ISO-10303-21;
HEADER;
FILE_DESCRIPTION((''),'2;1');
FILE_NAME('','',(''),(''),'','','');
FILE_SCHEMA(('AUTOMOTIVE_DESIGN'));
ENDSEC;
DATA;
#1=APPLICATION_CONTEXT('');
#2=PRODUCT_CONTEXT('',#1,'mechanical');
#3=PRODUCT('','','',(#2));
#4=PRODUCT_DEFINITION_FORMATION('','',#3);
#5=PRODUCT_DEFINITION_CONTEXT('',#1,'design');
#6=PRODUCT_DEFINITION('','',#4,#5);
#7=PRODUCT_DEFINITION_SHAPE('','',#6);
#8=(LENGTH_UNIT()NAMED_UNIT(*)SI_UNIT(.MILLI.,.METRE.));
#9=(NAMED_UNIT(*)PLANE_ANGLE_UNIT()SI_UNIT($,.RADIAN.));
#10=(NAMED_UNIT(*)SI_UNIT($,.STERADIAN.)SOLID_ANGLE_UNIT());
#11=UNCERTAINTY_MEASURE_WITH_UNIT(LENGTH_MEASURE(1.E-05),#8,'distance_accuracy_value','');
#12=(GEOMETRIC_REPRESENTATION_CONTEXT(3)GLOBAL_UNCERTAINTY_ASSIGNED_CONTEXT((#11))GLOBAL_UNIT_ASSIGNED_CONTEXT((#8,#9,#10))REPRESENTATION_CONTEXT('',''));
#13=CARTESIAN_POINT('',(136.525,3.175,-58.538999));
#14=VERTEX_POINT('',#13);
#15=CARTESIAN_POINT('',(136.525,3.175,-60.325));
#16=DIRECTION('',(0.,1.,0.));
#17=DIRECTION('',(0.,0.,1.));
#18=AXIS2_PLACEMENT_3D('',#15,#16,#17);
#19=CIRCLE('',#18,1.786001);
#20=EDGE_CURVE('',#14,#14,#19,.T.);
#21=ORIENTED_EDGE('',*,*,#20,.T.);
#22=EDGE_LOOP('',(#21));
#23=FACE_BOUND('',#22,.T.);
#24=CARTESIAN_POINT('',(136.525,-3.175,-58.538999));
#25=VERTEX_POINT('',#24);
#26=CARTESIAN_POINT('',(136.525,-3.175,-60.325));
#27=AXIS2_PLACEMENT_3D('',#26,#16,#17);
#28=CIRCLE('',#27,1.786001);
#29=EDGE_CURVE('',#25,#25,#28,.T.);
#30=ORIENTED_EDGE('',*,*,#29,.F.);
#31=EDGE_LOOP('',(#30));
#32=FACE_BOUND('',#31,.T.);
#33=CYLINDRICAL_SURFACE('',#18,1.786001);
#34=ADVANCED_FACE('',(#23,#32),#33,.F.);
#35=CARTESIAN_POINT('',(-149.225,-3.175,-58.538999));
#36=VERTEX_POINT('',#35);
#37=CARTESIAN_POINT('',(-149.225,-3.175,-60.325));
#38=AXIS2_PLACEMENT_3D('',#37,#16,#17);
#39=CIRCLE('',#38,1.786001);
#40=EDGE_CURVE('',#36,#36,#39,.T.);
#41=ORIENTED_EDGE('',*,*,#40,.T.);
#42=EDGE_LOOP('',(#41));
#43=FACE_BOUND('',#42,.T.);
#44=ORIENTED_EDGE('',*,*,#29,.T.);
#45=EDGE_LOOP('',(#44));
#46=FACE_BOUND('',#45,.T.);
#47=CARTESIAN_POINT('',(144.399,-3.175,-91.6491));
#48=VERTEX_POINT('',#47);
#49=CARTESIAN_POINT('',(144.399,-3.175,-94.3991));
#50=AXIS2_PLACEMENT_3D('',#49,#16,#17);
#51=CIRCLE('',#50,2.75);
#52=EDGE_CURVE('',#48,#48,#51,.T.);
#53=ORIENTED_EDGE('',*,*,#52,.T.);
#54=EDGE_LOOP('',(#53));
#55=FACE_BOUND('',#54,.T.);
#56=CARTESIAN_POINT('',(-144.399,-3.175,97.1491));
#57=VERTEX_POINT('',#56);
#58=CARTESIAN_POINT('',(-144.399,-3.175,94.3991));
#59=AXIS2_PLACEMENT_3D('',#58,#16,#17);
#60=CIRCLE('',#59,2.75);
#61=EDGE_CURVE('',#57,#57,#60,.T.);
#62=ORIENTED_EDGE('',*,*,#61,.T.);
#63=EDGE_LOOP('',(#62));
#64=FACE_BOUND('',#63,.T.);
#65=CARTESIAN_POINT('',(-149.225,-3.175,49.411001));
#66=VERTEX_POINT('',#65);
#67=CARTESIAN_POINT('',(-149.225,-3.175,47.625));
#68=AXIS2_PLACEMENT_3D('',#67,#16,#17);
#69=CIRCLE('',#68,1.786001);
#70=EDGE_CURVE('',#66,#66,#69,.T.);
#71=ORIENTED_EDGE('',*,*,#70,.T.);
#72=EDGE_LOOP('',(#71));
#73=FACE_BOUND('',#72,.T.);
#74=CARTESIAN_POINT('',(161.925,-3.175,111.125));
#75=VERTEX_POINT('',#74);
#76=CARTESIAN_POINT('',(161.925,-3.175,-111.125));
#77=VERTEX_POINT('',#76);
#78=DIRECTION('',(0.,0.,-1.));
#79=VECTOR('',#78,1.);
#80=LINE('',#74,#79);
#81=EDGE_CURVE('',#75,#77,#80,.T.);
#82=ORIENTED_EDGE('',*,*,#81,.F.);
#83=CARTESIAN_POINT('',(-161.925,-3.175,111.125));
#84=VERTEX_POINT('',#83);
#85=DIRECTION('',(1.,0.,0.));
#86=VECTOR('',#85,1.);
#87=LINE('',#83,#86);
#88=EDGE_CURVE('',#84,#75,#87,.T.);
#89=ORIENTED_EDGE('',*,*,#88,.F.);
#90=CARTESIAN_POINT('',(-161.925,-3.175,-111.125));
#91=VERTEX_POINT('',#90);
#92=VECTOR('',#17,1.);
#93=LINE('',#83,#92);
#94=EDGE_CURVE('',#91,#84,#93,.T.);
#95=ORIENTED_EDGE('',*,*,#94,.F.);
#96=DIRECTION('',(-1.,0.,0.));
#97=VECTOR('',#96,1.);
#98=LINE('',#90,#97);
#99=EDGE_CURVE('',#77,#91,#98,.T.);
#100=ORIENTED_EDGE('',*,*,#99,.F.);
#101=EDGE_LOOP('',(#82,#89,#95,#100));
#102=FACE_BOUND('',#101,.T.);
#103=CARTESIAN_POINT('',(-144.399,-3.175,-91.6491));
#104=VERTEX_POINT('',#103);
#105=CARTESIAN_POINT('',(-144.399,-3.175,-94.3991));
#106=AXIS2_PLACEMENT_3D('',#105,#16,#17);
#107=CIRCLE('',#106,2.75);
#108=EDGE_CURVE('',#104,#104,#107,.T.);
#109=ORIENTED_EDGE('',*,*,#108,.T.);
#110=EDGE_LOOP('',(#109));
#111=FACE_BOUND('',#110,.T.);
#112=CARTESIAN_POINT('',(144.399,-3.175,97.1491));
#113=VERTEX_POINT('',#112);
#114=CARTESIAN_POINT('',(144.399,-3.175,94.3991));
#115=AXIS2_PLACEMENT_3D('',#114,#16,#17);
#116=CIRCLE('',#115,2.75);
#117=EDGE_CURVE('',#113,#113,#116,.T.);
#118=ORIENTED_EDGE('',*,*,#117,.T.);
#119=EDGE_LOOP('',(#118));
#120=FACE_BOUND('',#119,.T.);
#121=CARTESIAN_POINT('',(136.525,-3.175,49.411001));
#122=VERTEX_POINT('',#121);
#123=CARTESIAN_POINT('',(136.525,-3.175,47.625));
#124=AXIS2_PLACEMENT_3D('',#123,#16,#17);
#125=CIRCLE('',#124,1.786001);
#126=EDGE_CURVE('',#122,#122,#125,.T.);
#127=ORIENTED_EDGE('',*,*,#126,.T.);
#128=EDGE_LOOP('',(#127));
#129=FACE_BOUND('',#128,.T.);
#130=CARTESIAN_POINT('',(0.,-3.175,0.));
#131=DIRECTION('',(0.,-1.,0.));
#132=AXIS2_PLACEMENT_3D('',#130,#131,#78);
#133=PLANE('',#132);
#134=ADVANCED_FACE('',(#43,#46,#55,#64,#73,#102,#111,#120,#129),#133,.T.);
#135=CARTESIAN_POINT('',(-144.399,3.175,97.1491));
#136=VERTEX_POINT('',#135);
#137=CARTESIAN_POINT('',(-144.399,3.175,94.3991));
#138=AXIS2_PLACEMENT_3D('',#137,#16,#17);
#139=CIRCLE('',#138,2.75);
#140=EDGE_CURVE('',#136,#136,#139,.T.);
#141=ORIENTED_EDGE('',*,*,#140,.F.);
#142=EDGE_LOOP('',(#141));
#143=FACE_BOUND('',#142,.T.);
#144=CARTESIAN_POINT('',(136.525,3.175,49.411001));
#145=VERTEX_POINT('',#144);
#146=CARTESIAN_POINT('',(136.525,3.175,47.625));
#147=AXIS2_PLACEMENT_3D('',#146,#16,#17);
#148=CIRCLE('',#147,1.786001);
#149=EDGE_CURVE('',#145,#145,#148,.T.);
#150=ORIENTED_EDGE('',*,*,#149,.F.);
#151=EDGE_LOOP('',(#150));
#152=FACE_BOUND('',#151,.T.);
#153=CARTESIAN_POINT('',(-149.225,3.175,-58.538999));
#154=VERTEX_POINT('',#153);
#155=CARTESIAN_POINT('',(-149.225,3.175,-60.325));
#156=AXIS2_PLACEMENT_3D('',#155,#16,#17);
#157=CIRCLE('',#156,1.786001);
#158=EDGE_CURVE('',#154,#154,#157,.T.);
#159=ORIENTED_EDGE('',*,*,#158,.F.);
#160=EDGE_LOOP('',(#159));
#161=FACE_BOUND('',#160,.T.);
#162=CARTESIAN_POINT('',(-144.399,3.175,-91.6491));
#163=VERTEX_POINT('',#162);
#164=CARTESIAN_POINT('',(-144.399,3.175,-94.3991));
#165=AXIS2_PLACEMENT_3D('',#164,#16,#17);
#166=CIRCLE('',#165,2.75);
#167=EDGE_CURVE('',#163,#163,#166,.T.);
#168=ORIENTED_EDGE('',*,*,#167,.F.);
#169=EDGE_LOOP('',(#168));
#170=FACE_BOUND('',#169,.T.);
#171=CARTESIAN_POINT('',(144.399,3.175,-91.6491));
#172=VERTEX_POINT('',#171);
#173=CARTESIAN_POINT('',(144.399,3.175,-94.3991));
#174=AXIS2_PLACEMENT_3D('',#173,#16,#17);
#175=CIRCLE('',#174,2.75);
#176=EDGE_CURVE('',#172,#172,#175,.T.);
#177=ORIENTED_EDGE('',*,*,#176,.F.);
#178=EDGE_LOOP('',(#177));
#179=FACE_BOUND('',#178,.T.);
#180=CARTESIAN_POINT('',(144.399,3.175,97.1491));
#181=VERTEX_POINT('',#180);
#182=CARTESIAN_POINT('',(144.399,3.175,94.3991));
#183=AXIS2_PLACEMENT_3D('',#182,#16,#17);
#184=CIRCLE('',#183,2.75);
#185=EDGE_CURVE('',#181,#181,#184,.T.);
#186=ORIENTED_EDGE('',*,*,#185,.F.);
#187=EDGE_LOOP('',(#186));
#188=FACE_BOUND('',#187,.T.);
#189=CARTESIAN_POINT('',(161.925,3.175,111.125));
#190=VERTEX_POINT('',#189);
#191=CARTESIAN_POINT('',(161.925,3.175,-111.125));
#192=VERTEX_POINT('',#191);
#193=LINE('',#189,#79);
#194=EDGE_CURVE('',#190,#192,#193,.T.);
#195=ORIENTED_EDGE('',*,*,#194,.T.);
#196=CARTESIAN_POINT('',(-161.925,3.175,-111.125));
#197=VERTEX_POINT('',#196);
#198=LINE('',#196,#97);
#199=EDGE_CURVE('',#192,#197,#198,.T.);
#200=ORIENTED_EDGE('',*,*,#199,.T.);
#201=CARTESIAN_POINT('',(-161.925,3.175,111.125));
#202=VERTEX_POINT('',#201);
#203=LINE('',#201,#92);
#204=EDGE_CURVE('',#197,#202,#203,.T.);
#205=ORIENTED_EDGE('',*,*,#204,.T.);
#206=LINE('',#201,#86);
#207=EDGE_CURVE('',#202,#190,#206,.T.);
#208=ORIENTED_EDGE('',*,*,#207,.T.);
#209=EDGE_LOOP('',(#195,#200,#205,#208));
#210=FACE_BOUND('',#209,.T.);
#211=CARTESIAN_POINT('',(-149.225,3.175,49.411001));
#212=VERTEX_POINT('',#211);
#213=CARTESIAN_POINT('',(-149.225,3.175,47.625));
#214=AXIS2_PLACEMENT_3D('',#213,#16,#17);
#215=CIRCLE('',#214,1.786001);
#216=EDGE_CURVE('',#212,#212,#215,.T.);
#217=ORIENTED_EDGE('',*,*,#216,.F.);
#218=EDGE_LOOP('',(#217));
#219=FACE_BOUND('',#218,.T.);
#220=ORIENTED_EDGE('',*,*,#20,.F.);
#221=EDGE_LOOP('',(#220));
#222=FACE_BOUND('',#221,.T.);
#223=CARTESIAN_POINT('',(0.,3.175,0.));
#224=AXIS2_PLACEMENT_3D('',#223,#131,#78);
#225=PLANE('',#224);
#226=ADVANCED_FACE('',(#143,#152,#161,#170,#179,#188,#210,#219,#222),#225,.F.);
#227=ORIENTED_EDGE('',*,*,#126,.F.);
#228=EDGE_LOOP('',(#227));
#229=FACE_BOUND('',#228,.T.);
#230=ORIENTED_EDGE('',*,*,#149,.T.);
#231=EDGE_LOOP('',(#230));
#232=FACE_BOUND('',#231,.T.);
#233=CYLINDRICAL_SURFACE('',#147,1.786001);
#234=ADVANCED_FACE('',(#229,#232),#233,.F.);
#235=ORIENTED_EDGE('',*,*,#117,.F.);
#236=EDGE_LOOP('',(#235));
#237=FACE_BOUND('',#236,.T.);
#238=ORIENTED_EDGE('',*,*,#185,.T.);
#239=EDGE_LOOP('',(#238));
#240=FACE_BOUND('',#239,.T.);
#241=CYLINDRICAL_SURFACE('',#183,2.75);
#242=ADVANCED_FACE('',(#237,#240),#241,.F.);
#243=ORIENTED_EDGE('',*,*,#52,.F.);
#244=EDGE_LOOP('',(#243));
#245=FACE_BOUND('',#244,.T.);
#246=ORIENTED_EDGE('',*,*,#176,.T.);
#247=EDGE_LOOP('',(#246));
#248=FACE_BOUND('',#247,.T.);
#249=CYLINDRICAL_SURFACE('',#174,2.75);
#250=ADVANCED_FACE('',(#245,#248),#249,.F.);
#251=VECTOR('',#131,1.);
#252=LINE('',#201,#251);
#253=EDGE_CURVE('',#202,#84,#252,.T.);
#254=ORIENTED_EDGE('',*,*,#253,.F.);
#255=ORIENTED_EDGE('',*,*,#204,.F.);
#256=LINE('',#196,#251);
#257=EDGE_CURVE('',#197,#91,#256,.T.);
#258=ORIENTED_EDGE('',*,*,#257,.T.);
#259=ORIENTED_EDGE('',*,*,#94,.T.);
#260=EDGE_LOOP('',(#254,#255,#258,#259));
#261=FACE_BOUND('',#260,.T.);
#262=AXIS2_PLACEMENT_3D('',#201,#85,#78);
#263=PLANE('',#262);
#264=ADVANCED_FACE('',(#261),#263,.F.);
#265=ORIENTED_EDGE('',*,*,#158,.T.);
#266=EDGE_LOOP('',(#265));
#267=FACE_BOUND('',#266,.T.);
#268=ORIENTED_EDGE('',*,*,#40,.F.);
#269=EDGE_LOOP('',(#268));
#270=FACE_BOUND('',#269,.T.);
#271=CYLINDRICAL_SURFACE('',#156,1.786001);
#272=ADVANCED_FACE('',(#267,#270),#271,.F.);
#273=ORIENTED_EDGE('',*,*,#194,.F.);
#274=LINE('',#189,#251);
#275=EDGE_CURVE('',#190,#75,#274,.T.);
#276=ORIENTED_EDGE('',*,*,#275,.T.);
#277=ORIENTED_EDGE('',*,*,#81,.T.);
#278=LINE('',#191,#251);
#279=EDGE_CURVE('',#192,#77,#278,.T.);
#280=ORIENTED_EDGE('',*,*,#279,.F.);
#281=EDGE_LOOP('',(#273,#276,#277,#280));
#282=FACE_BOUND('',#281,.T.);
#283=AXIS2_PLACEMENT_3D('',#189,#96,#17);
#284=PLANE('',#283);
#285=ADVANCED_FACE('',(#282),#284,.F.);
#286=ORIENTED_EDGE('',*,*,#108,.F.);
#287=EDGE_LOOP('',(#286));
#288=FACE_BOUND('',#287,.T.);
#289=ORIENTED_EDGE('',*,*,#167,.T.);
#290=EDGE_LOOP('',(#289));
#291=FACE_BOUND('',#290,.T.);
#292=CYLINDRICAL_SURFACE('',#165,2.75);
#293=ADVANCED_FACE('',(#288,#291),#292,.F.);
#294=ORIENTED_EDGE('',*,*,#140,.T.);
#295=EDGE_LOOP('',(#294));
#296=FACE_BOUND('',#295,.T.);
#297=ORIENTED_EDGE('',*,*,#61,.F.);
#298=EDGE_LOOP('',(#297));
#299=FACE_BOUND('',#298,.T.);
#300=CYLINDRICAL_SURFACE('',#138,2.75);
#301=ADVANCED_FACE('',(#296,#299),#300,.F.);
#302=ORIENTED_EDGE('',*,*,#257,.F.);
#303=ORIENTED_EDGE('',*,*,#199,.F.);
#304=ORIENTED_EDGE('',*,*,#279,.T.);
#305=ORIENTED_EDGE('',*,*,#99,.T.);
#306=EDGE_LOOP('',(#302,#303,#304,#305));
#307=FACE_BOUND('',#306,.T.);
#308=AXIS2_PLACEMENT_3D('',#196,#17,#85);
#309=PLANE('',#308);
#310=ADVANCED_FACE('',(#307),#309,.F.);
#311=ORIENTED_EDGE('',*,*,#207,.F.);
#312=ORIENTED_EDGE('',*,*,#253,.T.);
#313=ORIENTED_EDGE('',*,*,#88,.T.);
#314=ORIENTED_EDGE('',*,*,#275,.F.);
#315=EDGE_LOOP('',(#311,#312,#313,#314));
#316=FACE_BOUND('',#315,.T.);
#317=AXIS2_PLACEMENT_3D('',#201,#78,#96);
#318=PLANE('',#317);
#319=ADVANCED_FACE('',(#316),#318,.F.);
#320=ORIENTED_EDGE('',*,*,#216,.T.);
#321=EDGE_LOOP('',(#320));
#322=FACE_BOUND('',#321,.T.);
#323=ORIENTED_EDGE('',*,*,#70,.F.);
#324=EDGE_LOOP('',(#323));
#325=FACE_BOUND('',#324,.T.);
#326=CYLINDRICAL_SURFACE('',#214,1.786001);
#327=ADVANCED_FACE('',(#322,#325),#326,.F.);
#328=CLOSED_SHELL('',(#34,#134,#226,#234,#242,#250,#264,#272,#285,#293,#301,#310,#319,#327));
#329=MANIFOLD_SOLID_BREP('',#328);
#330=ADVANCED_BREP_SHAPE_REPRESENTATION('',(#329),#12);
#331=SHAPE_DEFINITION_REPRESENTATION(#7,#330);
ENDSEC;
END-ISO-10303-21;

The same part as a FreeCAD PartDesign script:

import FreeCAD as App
import Part
import Sketcher
Q = App.Units.Quantity

doc = App.newDocument("Part")
body = doc.addObject("PartDesign::Body", "Body")

sketch1 = doc.addObject("Sketcher::SketchObject", "Sketch")
body.addObject(sketch1)
sketch1.AttachmentSupport = (doc.XZ_Plane, [""])
sketch1.MapMode = "FlatFace"
sketch1.addGeometry([
    Part.LineSegment(App.Vector(-161.925, -111.125, 0), App.Vector(-161.925, 111.125, 0)),
    Part.LineSegment(App.Vector(-161.925, 111.125, 0), App.Vector(161.925, 111.125, 0)),
    Part.LineSegment(App.Vector(161.925, 111.125, 0), App.Vector(161.925, -111.125, 0)),
    Part.LineSegment(App.Vector(161.925, -111.125, 0), App.Vector(-161.925, -111.125, 0)),
], False)
sketch1.addConstraint([
    Sketcher.Constraint("Coincident", 0, 2, 1, 1),
    Sketcher.Constraint("Coincident", 1, 2, 2, 1),
    Sketcher.Constraint("Coincident", 2, 2, 3, 1),
    Sketcher.Constraint("Coincident", 3, 2, 0, 1),
    Sketcher.Constraint("Vertical", 0),
    Sketcher.Constraint("Horizontal", 1),
    Sketcher.Constraint("Vertical", 2),
    Sketcher.Constraint("Horizontal", 3),
    Sketcher.Constraint("Symmetric", 0, 2, 2, 2, -1, 1),
    Sketcher.Constraint("DistanceX", 1, 1, 1, 2, Q("12.75 in")),
    Sketcher.Constraint("DistanceY", 0, 1, 0, 2, Q("8.75 in")),
])
pad1 = doc.addObject("PartDesign::Pad", "Pad")
body.addObject(pad1)
pad1.Profile = sketch1
pad1.Length = Q("0.25 in")
pad1.Midplane = True

sketch2 = doc.addObject("Sketcher::SketchObject", "Sketch001")
body.addObject(sketch2)
sketch2.AttachmentSupport = (doc.XZ_Plane, [""])
sketch2.MapMode = "FlatFace"
sketch2.AttachmentOffset = App.Placement(App.Vector(0, 0, -0.125 * 25.4), App.Rotation())
sketch2.addGeometry([
    Part.Circle(App.Vector(-144.399, -94.3991, 0), App.Vector(0, 0, 1), 2.75),
    Part.Circle(App.Vector(144.399, -94.3991, 0), App.Vector(0, 0, 1), 2.75),
    Part.Circle(App.Vector(144.399, 94.3991, 0), App.Vector(0, 0, 1), 2.75),
    Part.Circle(App.Vector(-144.399, 94.3991, 0), App.Vector(0, 0, 1), 2.75),
], False)
sketch2.addConstraint([
    Sketcher.Constraint("Equal", 0, 1),
    Sketcher.Constraint("Equal", 1, 2),
    Sketcher.Constraint("Equal", 2, 3),
    Sketcher.Constraint("Symmetric", 0, 3, 2, 3, -1, 1),
    Sketcher.Constraint("Symmetric", 1, 3, 3, 3, -1, 1),
    Sketcher.Constraint("Symmetric", 0, 3, 1, 3, -2),
    Sketcher.Constraint("Diameter", 0, 5.5),
    Sketcher.Constraint("DistanceX", 0, 3, 1, 3, Q("11.37 in")),
    Sketcher.Constraint("DistanceY", 1, 3, 2, 3, Q("7.433 in")),
])
doc.recompute()
hole = doc.addObject("PartDesign::Hole", "Hole")
body.addObject(hole)
hole.Profile = sketch2
hole.ThreadType = "None"
hole.Diameter = 5.5
hole.DepthType = "ThroughAll"
hole.Reversed = True

sketch3 = doc.addObject("Sketcher::SketchObject", "Sketch002")
body.addObject(sketch3)
sketch3.AttachmentSupport = (doc.XZ_Plane, [""])
sketch3.MapMode = "FlatFace"
sketch3.AttachmentOffset = App.Placement(App.Vector(0, 0, -0.125 * 25.4), App.Rotation())
sketch3.addGeometry([
    Part.Circle(App.Vector(-149.225, -60.325, 0), App.Vector(0, 0, 1), 1.786001),
    Part.Circle(App.Vector(-149.225, 47.625, 0), App.Vector(0, 0, 1), 1.786001),
    Part.Circle(App.Vector(136.525, -60.325, 0), App.Vector(0, 0, 1), 1.786001),
    Part.Circle(App.Vector(136.525, 47.625, 0), App.Vector(0, 0, 1), 1.786001),
], False)
sketch3.addConstraint([
    Sketcher.Constraint("Equal", 0, 1),
    Sketcher.Constraint("Equal", 1, 2),
    Sketcher.Constraint("Equal", 2, 3),
    Sketcher.Constraint("Horizontal", 0, 3, 2, 3),
    Sketcher.Constraint("Horizontal", 1, 3, 3, 3),
    Sketcher.Constraint("Vertical", 0, 3, 1, 3),
    Sketcher.Constraint("Vertical", 2, 3, 3, 3),
    Sketcher.Constraint("Diameter", 0, 3.572002),
    Sketcher.Constraint("DistanceY", 0, 3, 1, 3, Q("4.25 in")),
    Sketcher.Constraint("DistanceX", 0, 3, 2, 3, Q("11.25 in")),
    Sketcher.Constraint("DistanceX", 0, 3, -1, 1, Q("5.875 in")),
    Sketcher.Constraint("DistanceY", 0, 3, -1, 1, Q("2.375 in")),
])
doc.recompute()
hole2 = doc.addObject("PartDesign::Hole", "Hole001")
body.addObject(hole2)
hole2.Profile = sketch3
hole2.ThreadType = "None"
hole2.Diameter = 3.572002
hole2.DepthType = "ThroughAll"
hole2.Reversed = True

doc.recompute()
